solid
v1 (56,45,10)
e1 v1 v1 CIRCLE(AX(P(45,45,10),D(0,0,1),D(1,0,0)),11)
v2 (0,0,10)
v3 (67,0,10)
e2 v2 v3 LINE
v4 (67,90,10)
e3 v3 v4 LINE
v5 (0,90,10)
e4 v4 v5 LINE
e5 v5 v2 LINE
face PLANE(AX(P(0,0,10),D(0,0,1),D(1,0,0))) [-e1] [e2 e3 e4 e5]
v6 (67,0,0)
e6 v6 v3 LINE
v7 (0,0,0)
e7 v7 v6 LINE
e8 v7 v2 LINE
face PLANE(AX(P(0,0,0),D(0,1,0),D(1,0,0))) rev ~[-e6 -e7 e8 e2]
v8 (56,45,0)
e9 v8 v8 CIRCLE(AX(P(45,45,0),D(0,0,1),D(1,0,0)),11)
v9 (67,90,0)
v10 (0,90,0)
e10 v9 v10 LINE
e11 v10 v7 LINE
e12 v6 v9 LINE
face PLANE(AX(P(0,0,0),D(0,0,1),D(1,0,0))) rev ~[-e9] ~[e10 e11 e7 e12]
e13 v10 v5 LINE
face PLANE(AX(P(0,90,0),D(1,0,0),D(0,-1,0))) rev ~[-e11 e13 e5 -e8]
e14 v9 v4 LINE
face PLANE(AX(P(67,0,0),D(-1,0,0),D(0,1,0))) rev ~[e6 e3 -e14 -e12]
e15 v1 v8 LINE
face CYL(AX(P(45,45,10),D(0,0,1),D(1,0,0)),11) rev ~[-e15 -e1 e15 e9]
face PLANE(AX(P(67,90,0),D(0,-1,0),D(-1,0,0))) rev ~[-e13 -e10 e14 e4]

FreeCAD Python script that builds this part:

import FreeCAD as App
import Part
import Sketcher

V = App.Vector


def add_polygon(sketch, points):
    """Adds a closed chain of lines whose ends are joined by coincident constraints."""
    first, n = sketch.GeometryCount, len(points)
    for a, b in zip(points, points[1:] + points[:1]):
        sketch.addGeometry(Part.LineSegment(App.Vector(*a, 0), App.Vector(*b, 0)), False)
    for i in range(n):
        sketch.addConstraint(Sketcher.Constraint("Coincident", first + i, 2, first + (i + 1) % n, 1))

doc = App.newDocument("Part")
body = doc.addObject("PartDesign::Body", "Body")

# Sketch on XY plane
sketch1 = body.newObject("Sketcher::SketchObject", "Sketch")
sketch1.AttachmentSupport = (doc.getObject("XY_Plane"), [""])
sketch1.MapMode = "FlatFace"
add_polygon(sketch1, [(0, 90), (0, 0), (67, 0), (67, 90)])  # lines 0-3
sketch1.addConstraint([
    Sketcher.Constraint("Vertical", 0),
    Sketcher.Constraint("Horizontal", 1),
    Sketcher.Constraint("Vertical", 2),
    Sketcher.Constraint("Horizontal", 3),
    Sketcher.Constraint("Coincident", 0, 2, -1, 1),
    Sketcher.Constraint("DistanceX", 1, 1, 1, 2, 67.0),
    Sketcher.Constraint("DistanceY", 0, 2, 0, 1, 90.0),
])
pad1 = body.newObject("PartDesign::Pad", "Pad")
pad1.Profile = sketch1
pad1.Length = 10

# Sketch on XY plane
sketch2 = body.newObject("Sketcher::SketchObject", "Sketch001")
sketch2.AttachmentSupport = (doc.getObject("XY_Plane"), [""])
sketch2.MapMode = "FlatFace"
sketch2.AttachmentOffset = App.Placement(V(0, 0, 10), App.Rotation())
sketch2.addGeometry(Part.Circle(V(45, 45, 0), V(0, 0, 1), 11), False)
sketch2.addConstraint([
    Sketcher.Constraint("Diameter", 0, 22.0),
    Sketcher.Constraint("DistanceX", -1, 1, 0, 3, 45.0),
    Sketcher.Constraint("DistanceY", -1, 1, 0, 3, 45.0),
])
pocket1 = body.newObject("PartDesign::Pocket", "Pocket")
pocket1.Profile = sketch2
pocket1.Length = 10

doc.recompute()
